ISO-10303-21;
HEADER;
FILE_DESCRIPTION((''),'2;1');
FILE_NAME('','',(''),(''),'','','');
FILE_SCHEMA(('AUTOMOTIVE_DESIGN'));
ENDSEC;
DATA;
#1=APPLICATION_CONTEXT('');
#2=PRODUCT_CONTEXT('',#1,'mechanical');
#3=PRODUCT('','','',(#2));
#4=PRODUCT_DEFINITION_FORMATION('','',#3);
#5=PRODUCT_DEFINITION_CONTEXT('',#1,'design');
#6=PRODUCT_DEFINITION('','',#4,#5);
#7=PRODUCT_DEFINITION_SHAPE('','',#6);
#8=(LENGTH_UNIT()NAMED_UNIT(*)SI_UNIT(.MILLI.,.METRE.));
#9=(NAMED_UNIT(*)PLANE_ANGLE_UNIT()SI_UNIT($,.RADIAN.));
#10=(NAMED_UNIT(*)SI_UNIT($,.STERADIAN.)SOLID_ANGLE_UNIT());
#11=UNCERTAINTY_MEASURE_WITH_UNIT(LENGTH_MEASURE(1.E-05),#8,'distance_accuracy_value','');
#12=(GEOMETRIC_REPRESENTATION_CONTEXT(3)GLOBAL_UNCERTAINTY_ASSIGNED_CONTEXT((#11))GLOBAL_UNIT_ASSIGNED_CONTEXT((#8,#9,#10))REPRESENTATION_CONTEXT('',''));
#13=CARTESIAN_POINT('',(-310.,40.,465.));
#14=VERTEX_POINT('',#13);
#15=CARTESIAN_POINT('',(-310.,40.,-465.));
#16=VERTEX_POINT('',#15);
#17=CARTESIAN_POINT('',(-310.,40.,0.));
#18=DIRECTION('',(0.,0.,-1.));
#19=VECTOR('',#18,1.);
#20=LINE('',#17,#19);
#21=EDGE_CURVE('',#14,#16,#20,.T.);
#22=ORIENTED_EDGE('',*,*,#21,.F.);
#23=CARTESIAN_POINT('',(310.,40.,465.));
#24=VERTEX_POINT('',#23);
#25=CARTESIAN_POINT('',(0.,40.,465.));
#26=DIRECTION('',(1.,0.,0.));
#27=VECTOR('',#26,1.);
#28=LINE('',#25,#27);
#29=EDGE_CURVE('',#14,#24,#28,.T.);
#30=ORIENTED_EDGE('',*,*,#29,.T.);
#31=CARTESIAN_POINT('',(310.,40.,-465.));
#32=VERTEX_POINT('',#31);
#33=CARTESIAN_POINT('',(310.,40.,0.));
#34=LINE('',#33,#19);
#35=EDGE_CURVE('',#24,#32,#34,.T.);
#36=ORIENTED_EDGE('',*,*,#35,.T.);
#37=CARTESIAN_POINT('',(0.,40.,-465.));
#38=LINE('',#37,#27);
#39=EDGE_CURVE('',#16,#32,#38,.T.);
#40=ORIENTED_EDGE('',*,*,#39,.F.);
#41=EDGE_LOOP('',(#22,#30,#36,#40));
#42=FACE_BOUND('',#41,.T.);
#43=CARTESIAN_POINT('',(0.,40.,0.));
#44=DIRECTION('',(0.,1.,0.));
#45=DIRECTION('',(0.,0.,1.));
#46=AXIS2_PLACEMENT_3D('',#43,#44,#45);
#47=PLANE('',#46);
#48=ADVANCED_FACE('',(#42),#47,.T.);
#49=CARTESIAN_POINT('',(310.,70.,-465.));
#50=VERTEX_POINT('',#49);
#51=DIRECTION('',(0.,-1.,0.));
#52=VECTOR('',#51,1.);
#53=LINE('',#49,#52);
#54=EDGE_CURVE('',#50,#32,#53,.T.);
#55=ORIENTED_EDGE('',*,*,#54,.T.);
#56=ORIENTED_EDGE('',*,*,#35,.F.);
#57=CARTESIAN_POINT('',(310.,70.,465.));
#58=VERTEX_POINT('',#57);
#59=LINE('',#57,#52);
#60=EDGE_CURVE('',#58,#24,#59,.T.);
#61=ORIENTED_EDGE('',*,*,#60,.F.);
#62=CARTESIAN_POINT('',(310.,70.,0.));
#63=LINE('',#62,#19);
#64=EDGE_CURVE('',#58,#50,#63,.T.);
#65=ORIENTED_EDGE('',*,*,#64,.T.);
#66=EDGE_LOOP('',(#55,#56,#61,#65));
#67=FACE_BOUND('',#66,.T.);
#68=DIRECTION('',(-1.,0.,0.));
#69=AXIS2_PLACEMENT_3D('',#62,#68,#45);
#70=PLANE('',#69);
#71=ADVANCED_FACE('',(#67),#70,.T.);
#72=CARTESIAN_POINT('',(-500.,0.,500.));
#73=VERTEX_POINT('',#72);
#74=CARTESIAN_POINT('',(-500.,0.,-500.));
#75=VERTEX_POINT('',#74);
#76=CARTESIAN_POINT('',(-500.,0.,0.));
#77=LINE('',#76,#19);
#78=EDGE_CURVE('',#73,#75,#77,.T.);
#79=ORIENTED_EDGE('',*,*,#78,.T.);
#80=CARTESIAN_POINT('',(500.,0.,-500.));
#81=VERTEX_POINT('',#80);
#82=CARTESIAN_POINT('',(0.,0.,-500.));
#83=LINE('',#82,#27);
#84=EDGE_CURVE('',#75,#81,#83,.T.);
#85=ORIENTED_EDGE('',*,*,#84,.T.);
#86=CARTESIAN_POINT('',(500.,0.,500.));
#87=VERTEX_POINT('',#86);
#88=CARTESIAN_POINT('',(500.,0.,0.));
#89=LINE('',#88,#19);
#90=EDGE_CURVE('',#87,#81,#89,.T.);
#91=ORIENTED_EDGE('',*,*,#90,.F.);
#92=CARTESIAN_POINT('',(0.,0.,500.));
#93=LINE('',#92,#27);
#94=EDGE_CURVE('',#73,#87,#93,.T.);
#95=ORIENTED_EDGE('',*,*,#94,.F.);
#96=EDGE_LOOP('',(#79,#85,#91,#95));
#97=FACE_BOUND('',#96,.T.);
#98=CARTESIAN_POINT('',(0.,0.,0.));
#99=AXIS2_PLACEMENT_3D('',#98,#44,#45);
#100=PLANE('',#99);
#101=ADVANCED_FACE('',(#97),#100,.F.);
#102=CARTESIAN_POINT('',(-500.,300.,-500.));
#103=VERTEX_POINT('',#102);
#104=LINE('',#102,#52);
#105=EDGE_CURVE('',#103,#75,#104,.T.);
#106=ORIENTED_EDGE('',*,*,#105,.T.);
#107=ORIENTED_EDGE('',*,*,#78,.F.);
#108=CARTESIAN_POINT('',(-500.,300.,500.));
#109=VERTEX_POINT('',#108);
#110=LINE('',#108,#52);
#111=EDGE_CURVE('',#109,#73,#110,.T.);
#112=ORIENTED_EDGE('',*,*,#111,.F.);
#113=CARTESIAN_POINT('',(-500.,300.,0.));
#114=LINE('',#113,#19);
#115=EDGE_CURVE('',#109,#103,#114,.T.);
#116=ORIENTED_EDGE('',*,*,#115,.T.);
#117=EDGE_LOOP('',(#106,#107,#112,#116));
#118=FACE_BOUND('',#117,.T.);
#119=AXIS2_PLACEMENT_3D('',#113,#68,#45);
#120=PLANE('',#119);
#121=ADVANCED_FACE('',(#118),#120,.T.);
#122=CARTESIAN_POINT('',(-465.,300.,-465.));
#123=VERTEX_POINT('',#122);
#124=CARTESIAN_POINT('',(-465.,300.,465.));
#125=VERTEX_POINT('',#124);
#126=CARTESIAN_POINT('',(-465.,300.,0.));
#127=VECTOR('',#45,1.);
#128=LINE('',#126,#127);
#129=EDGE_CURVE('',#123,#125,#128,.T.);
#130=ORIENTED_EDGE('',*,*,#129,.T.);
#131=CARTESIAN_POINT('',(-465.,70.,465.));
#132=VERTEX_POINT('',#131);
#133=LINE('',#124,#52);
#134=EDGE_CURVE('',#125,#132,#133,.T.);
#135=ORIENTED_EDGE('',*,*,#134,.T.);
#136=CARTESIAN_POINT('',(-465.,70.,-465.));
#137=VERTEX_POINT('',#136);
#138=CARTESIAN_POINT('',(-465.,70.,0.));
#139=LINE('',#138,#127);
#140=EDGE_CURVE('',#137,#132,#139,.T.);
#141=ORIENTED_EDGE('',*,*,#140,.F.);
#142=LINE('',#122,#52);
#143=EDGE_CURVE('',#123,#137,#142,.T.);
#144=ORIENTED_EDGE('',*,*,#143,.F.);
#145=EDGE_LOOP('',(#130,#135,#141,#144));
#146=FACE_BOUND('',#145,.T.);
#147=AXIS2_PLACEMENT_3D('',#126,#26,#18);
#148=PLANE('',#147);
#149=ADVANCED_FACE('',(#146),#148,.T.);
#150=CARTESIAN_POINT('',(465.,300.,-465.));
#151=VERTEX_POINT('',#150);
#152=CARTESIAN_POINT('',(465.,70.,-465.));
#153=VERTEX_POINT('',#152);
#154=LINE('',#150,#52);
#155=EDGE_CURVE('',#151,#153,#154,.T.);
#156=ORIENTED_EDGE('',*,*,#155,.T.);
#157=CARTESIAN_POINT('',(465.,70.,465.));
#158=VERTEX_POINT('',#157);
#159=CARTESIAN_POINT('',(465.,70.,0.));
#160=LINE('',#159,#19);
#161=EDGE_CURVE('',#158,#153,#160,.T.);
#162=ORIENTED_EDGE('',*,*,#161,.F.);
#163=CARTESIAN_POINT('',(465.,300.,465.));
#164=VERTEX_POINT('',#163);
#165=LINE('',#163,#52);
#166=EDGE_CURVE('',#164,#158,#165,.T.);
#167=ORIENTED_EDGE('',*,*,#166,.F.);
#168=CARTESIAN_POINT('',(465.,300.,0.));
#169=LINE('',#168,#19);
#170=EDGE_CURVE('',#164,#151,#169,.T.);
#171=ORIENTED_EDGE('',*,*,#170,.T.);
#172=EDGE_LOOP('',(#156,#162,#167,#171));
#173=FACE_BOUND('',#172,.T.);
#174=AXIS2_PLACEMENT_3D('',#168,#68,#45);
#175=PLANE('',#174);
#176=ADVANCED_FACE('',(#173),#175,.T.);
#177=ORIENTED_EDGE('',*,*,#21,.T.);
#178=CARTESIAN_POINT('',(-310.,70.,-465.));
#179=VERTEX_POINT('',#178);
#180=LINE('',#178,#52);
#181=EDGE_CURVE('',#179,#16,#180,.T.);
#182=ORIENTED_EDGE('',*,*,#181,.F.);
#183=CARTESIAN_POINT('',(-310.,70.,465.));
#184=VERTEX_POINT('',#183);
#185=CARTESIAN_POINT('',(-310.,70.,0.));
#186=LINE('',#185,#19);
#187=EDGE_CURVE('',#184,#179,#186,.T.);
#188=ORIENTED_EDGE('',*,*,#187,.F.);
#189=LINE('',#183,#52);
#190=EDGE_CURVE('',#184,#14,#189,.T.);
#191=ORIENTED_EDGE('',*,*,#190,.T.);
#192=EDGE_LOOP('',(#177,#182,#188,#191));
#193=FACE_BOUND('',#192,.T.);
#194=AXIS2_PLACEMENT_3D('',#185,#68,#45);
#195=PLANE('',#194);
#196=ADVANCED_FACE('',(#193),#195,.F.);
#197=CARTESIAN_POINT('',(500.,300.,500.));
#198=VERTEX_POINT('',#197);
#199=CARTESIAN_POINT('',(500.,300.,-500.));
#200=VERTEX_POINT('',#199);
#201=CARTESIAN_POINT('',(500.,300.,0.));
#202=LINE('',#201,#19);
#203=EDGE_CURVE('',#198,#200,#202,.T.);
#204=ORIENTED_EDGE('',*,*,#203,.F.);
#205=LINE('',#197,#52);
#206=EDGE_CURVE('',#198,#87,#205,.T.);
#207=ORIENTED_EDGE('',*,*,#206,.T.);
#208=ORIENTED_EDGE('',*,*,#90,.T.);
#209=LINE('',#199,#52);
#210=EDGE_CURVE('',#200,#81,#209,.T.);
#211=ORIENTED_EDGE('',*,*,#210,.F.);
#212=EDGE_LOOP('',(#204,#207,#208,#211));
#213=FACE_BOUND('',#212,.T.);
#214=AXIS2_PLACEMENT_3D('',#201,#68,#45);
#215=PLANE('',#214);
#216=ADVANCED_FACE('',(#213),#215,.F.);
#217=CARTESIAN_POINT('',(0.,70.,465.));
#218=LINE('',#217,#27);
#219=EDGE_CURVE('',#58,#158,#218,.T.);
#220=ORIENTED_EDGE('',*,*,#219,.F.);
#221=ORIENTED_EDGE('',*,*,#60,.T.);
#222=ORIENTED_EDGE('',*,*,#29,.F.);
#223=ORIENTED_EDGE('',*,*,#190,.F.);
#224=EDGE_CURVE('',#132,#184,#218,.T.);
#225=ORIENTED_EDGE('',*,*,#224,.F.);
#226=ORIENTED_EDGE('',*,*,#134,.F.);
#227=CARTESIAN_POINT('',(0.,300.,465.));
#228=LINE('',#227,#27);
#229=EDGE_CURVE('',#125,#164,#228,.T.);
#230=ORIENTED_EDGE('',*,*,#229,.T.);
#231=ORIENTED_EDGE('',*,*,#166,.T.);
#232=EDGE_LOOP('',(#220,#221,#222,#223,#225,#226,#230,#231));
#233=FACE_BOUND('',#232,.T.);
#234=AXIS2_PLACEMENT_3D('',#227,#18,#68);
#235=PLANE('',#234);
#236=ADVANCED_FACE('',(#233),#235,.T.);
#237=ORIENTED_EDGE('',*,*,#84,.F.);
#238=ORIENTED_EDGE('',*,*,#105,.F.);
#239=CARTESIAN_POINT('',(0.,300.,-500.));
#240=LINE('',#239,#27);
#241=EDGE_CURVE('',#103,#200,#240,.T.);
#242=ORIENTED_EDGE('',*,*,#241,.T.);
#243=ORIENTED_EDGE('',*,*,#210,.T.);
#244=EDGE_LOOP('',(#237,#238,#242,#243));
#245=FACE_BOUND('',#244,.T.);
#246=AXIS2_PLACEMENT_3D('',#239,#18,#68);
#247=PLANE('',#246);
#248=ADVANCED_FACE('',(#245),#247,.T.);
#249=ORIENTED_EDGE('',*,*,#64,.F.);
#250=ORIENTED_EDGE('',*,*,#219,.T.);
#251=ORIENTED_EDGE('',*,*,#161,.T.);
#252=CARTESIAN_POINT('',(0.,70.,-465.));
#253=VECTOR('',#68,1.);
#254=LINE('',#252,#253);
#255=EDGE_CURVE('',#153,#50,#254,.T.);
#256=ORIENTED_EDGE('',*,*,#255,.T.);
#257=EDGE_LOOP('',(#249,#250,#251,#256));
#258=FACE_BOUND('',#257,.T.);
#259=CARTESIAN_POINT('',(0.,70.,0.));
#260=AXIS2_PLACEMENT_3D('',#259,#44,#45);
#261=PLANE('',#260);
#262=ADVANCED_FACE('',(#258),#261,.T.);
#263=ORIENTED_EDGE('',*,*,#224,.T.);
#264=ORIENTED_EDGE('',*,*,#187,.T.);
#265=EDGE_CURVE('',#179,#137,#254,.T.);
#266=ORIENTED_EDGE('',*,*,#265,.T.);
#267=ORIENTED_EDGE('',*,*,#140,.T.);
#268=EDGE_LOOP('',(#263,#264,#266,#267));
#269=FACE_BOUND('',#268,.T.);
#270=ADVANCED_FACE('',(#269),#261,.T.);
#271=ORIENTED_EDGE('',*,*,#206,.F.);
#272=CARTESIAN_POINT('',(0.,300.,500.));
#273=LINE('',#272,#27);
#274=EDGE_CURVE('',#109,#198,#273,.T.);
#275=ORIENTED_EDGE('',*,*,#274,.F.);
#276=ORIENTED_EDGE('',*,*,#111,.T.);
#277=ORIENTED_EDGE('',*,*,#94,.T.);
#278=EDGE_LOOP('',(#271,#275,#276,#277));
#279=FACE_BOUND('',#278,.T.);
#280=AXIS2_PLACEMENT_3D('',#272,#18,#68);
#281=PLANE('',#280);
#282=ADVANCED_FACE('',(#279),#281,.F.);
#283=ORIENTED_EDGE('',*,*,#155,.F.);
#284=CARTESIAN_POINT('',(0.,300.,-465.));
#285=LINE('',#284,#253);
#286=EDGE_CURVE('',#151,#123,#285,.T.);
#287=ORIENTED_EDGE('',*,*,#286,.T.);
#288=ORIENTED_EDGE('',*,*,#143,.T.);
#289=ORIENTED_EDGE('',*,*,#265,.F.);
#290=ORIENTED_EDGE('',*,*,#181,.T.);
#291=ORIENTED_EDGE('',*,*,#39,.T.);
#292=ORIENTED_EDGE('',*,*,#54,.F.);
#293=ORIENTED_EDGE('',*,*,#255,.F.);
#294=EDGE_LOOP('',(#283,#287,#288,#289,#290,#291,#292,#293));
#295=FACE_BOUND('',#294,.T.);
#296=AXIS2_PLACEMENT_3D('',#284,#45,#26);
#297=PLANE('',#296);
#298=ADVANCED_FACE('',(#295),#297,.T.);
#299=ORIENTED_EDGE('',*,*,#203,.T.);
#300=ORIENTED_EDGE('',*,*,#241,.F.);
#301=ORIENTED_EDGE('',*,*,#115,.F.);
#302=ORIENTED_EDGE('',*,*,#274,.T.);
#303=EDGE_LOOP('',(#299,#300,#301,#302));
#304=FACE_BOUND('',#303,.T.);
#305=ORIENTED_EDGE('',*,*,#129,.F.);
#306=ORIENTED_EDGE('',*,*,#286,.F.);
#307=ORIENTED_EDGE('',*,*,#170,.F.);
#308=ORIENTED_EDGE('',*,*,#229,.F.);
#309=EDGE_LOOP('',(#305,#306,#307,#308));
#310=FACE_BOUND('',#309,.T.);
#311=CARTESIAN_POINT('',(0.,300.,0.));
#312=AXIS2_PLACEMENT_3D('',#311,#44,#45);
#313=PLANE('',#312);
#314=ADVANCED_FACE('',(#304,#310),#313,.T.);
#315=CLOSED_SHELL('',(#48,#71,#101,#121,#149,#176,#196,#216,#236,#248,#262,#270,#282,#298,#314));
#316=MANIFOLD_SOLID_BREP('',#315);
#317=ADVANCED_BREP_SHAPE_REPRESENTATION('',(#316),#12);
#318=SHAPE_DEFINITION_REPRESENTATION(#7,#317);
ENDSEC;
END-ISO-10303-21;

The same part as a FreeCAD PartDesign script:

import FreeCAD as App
import Part
import Sketcher


def add_polygon(sketch, points):
    """Adds a closed chain of lines whose ends are joined by coincident constraints."""
    first, n = sketch.GeometryCount, len(points)
    for a, b in zip(points, points[1:] + points[:1]):
        sketch.addGeometry(Part.LineSegment(App.Vector(*a, 0), App.Vector(*b, 0)), False)
    for i in range(n):
        sketch.addConstraint(Sketcher.Constraint("Coincident", first + i, 2, first + (i + 1) % n, 1))

doc = App.newDocument("Part")
body = doc.addObject("PartDesign::Body", "Body")

# Sketch on XZ plane
sketch1 = doc.addObject("Sketcher::SketchObject", "Sketch")
body.addObject(sketch1)
sketch1.AttachmentSupport = (doc.XZ_Plane, [""])
sketch1.MapMode = "FlatFace"
add_polygon(sketch1, [(-500, -500), (-500, 500), (500, 500), (500, -500)])  # lines 0-3
add_polygon(sketch1, [(-465, -465), (465, -465), (465, 465), (-465, 465)])  # lines 4-7
sketch1.addConstraint([
    Sketcher.Constraint("Vertical", 0),
    Sketcher.Constraint("Horizontal", 1),
    Sketcher.Constraint("Vertical", 2),
    Sketcher.Constraint("Horizontal", 3),
    Sketcher.Constraint("Horizontal", 4),
    Sketcher.Constraint("Vertical", 5),
    Sketcher.Constraint("Horizontal", 6),
    Sketcher.Constraint("Vertical", 7),
    Sketcher.Constraint("Symmetric", 0, 2, 2, 2, -1, 1),
    Sketcher.Constraint("Symmetric", 4, 2, 6, 2, -1, 1),
    Sketcher.Constraint("Equal", 3, 0),
    Sketcher.Constraint("Equal", 6, 5),
    Sketcher.Constraint("DistanceX", 1, 1, 1, 2, 1000.0),
    Sketcher.Constraint("DistanceX", 4, 1, 4, 2, 930.0),
])
pad1 = doc.addObject("PartDesign::Pad", "Pad")
body.addObject(pad1)
pad1.Profile = sketch1
pad1.Length = 300
pad1.Reversed = True

# Sketch on XZ plane
sketch2 = doc.addObject("Sketcher::SketchObject", "Sketch001")
body.addObject(sketch2)
sketch2.AttachmentSupport = (doc.XZ_Plane, [""])
sketch2.MapMode = "FlatFace"
add_polygon(sketch2, [(-465, -465), (-465, 465), (-310, 465), (-310, -465)])  # lines 0-3
add_polygon(sketch2, [(310, -465), (310, 465), (465, 465), (465, -465)])  # lines 4-7
sketch2.addConstraint([
    Sketcher.Constraint("Vertical", 0),
    Sketcher.Constraint("Horizontal", 1),
    Sketcher.Constraint("Vertical", 2),
    Sketcher.Constraint("Horizontal", 3),
    Sketcher.Constraint("Vertical", 4),
    Sketcher.Constraint("Horizontal", 5),
    Sketcher.Constraint("Vertical", 6),
    Sketcher.Constraint("Horizontal", 7),
    Sketcher.Constraint("Symmetric", 2, 2, 4, 2, -1, 1),
    Sketcher.Constraint("Symmetric", 0, 2, 6, 2, -1, 1),
    Sketcher.Constraint("Horizontal", 1, 2, 4, 2),
    Sketcher.Constraint("DistanceX", 1, 1, 1, 2, 155.0),
    Sketcher.Constraint("DistanceY", 0, 1, 0, 2, 930.0),
    Sketcher.Constraint("DistanceX", 0, 2, -1, 1, 465.0),
])
pad2 = doc.addObject("PartDesign::Pad", "Pad001")
body.addObject(pad2)
pad2.Profile = sketch2
pad2.Length = 70
pad2.Reversed = True

# Sketch on XZ plane
sketch3 = doc.addObject("Sketcher::SketchObject", "Sketch002")
body.addObject(sketch3)
sketch3.AttachmentSupport = (doc.XZ_Plane, [""])
sketch3.MapMode = "FlatFace"
add_polygon(sketch3, [(-310, -465), (-310, 465), (310, 465), (310, -465)])  # lines 0-3
sketch3.addConstraint([
    Sketcher.Constraint("Vertical", 0),
    Sketcher.Constraint("Horizontal", 1),
    Sketcher.Constraint("Vertical", 2),
    Sketcher.Constraint("Horizontal", 3),
    Sketcher.Constraint("Symmetric", 0, 2, 2, 2, -1, 1),
    Sketcher.Constraint("DistanceX", 1, 1, 1, 2, 620.0),
    Sketcher.Constraint("DistanceY", 0, 1, 0, 2, 930.0),
])
pad3 = doc.addObject("PartDesign::Pad", "Pad002")
body.addObject(pad3)
pad3.Profile = sketch3
pad3.Length = 40
pad3.Reversed = True

doc.recompute()
